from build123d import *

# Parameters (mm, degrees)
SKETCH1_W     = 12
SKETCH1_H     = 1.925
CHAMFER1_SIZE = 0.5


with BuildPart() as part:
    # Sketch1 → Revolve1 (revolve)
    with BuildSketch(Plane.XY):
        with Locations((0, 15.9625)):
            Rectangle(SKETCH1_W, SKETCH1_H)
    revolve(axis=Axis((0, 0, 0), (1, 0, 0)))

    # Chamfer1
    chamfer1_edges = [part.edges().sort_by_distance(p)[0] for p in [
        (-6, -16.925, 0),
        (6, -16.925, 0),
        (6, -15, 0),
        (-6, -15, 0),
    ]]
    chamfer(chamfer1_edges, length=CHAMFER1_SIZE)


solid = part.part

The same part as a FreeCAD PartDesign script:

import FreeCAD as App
import Part
import Sketcher

V = App.Vector


def edges_at(feature, points):
    """Names of the edges that pass closest to the given points."""
    edges = feature.Shape.Edges
    near = lambda p: min(range(len(edges)), key=lambda i: edges[i].distToShape(Part.Vertex(*p))[0])
    return sorted({f"Edge{near(p) + 1}" for p in points})

doc = App.newDocument("Part")
body = doc.addObject("PartDesign::Body", "Body")

sketch1 = doc.addObject("Sketcher::SketchObject", "Sketch")
body.addObject(sketch1)
sketch1.AttachmentSupport = (doc.XY_Plane, [""])
sketch1.MapMode = "FlatFace"
sketch1.addGeometry(Part.LineSegment(V(-6, 16.9, 0), V(-6, 15, 0)), False)
sketch1.addGeometry(Part.LineSegment(V(-6, 15, 0), V(6, 15, 0)), False)
sketch1.addGeometry(Part.LineSegment(V(6, 15, 0), V(6, 16.9, 0)), False)
sketch1.addGeometry(Part.LineSegment(V(6, 16.9, 0), V(-6, 16.9, 0)), False)
sketch1.addConstraint(Sketcher.Constraint("Coincident", 0, 2, 1, 1))
sketch1.addConstraint(Sketcher.Constraint("Coincident", 1, 2, 2, 1))
sketch1.addConstraint(Sketcher.Constraint("Coincident", 2, 2, 3, 1))
sketch1.addConstraint(Sketcher.Constraint("Coincident", 3, 2, 0, 1))
sketch1.addConstraint(Sketcher.Constraint("Vertical", 0))
sketch1.addConstraint(Sketcher.Constraint("Horizontal", 1))
sketch1.addConstraint(Sketcher.Constraint("Vertical", 2))
sketch1.addConstraint(Sketcher.Constraint("Horizontal", 3))
sketch1.addConstraint(Sketcher.Constraint("DistanceX", 1, 1, 1, 2, 12.0))
sketch1.addConstraint(Sketcher.Constraint("DistanceX", 0, 2, -1, 1, 6.0))
sketch1.addConstraint(Sketcher.Constraint("DistanceY", -1, 1, 0, 2, 15.0))
sketch1.addConstraint(Sketcher.Constraint("DistanceY", 0, 2, 0, 1, 1.925))
revolution = doc.addObject("PartDesign::Revolution", "Revolution")
body.addObject(revolution)
revolution.Profile = sketch1
revolution.ReferenceAxis = (sketch1, ["H_Axis"])
revolution.Angle = 360
doc.recompute()

chamfer = doc.addObject("PartDesign::Chamfer", "Chamfer")
body.addObject(chamfer)
chamfer.Base = (revolution, edges_at(revolution, [
    (-6, -16.925, 0),
    (6, -16.925, 0),
    (6, -15, 0),
    (-6, -15, 0),
]))
chamfer.Size = 0.5

doc.recompute()
